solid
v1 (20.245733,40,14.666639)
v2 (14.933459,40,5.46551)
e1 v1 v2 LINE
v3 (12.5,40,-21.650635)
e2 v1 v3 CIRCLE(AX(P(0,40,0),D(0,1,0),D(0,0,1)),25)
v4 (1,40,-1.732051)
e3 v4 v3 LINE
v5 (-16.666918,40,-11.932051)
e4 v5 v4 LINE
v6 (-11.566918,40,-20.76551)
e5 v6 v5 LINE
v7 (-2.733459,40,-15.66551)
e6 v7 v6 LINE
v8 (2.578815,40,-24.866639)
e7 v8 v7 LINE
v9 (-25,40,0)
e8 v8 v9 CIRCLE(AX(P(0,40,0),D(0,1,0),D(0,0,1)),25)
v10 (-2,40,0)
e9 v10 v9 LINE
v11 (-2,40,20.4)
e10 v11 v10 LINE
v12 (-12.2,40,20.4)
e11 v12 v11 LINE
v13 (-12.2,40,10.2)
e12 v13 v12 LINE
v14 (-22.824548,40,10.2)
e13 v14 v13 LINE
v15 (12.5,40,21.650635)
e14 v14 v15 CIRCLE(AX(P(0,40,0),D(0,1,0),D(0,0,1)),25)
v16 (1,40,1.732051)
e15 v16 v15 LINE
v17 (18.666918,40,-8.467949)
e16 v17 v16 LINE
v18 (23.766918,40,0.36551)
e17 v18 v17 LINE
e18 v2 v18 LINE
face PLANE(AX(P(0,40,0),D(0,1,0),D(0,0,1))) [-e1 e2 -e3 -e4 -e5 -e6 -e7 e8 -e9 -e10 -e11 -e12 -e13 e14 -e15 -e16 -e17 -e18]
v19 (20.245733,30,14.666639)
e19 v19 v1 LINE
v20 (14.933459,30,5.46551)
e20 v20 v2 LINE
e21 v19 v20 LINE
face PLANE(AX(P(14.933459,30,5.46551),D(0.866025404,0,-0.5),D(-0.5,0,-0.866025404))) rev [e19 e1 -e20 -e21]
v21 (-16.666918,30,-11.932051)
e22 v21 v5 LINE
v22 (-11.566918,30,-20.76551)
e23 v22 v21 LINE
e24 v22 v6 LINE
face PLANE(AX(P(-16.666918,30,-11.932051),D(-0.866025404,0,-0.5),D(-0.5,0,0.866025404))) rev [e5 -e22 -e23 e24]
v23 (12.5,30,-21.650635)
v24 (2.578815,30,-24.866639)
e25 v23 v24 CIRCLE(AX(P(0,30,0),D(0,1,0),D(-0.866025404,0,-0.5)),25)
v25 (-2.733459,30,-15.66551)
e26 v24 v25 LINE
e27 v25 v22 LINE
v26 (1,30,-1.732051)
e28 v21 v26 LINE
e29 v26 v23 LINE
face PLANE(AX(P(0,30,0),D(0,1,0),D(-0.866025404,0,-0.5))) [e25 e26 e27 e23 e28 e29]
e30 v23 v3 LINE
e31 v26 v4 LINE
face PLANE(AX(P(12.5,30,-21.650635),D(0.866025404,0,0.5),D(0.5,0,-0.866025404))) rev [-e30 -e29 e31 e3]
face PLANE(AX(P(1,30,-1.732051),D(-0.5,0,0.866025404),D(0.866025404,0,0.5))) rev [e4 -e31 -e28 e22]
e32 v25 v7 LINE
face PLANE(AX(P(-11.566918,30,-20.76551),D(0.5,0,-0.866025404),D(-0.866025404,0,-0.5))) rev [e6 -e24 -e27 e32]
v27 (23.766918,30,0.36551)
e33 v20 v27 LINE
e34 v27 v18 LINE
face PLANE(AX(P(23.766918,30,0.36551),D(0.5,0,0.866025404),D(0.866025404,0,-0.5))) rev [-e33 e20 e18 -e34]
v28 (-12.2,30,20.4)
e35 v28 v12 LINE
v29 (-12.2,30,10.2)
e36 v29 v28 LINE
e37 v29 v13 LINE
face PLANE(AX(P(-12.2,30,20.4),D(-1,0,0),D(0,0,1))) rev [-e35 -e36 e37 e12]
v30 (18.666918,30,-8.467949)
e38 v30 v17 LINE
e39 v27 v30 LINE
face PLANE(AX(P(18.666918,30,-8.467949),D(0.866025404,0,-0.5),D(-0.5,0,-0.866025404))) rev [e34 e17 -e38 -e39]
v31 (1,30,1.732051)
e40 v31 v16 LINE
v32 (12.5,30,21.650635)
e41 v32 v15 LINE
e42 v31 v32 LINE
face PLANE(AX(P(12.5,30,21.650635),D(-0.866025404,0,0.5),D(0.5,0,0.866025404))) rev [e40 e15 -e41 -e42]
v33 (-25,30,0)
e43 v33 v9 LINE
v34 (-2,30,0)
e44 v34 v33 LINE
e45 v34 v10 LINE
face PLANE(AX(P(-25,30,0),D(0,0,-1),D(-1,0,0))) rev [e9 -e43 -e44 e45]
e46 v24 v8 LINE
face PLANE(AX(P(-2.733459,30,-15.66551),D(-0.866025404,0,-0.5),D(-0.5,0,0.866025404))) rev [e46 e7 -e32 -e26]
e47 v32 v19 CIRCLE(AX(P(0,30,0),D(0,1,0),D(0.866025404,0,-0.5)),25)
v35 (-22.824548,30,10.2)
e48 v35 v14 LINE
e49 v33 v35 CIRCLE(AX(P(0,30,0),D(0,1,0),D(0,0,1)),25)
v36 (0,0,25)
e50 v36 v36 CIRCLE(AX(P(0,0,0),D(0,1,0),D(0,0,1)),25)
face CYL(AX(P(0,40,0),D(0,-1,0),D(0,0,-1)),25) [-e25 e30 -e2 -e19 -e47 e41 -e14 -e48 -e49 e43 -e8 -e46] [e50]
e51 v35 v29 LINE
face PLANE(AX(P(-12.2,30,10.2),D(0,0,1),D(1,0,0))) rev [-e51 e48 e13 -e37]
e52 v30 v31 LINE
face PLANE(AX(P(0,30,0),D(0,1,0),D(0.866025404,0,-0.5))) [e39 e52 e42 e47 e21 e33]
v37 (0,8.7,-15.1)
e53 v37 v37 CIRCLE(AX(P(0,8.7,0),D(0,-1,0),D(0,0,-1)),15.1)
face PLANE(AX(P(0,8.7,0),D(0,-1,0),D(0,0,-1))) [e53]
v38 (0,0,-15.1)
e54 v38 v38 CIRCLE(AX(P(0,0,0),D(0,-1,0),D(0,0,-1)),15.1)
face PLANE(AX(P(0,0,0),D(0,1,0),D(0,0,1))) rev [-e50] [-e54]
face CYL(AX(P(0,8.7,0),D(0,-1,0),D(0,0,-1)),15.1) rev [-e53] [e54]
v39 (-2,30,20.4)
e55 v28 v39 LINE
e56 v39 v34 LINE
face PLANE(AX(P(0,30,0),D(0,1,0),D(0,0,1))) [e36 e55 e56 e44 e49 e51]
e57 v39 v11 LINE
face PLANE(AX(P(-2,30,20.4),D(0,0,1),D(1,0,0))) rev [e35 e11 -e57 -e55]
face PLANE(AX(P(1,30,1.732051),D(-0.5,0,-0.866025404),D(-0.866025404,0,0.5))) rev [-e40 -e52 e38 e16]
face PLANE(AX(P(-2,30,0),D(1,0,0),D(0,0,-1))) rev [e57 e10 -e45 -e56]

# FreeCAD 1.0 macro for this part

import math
import FreeCAD as App
import Part
import Sketcher

V = App.Vector
Q = App.Units.Quantity

doc = App.newDocument("Part")
params = doc.addObject("Spreadsheet::Sheet", "Params")
for row, (alias, value) in enumerate([
    ("sketch1_diameter", "50 mm"),
    ("pad1_length", "40 mm"),
    ("sketch2_radius", "25 mm"),
    ("sketch2_width", "23 mm"),
    ("sketch2_width2", "10.2 mm"),
    ("sketch2_height", "20.4 mm"),
    ("pocket1_length", "10 mm"),
    ("sketch3_diameter", "30.2 mm"),
    ("pocket2_length", "8.7 mm"),
], start=1):
    params.set(f"A{row}", alias)
    params.set(f"B{row}", "=" + value)
    params.setAlias(f"B{row}", alias)

body = doc.addObject("PartDesign::Body", "Body")

sketch1 = body.newObject("Sketcher::SketchObject", "Sketch")
sketch1.AttachmentSupport = (doc.getObject("XZ_Plane"), [""])
sketch1.MapMode = "FlatFace"
sketch1.addGeometry(Part.Circle(V(0, 0, 0), V(0, 0, 1), 25), False)
sketch1.addConstraint([
    Sketcher.Constraint("Coincident", 0, 3, -1, 1),
    Sketcher.Constraint("Diameter", 0, Q("50 mm")),
])
sketch1.setExpression("Constraints[1]", "Params.sketch1_diameter")
pad1 = body.newObject("PartDesign::Pad", "Pad")
pad1.Profile = sketch1
pad1.setExpression("Length", "Params.pad1_length")
pad1.Reversed = True

sketch2 = body.newObject("Sketcher::SketchObject", "Sketch001")
sketch2.AttachmentSupport = (doc.getObject("XZ_Plane"), [""])
sketch2.MapMode = "FlatFace"
sketch2.AttachmentOffset = App.Placement(V(0, 0, -30), App.Rotation())
sketch2.addGeometry([
    Part.LineSegment(V(-2, 0, 0), V(-25, 0, 0)),
    Part.ArcOfCircle(Part.Circle(V(0, 0, 0), V(0, 0, 1), 25), math.radians(156), math.radians(180)),
    Part.LineSegment(V(-23, 10, 0), V(-12, 10, 0)),
    Part.LineSegment(V(-12, 10, 0), V(-12, 20, 0)),
    Part.LineSegment(V(-12, 20, 0), V(-2, 20, 0)),
    Part.LineSegment(V(-2, 20, 0), V(-2, 0, 0)),
], False)
sketch2.addConstraint([
    Sketcher.Constraint("Coincident", 0, 2, 1, 2),
    Sketcher.Constraint("Coincident", 1, 1, 2, 1),
    Sketcher.Constraint("Coincident", 2, 2, 3, 1),
    Sketcher.Constraint("Coincident", 3, 2, 4, 1),
    Sketcher.Constraint("Coincident", 4, 2, 5, 1),
    Sketcher.Constraint("Coincident", 5, 2, 0, 1),
    Sketcher.Constraint("Horizontal", 0),
    Sketcher.Constraint("Horizontal", 2),
    Sketcher.Constraint("Vertical", 3),
    Sketcher.Constraint("Horizontal", 4),
    Sketcher.Constraint("Vertical", 5),
    Sketcher.Constraint("Coincident", 1, 3, -1, 1),
    Sketcher.Constraint("PointOnObject", 0, 2, -1),
    Sketcher.Constraint("Equal", 4, 3),
    Sketcher.Constraint("Radius", 1, Q("25 mm")),
    Sketcher.Constraint("DistanceX", 0, 2, 0, 1, Q("23 mm")),
    Sketcher.Constraint("DistanceX", 4, 1, 4, 2, Q("10.2 mm")),
    Sketcher.Constraint("DistanceY", 5, 2, 5, 1, Q("20.4 mm")),
])
sketch2.setExpression("Constraints[14]", "Params.sketch2_radius")
sketch2.setExpression("Constraints[15]", "Params.sketch2_width")
sketch2.setExpression("Constraints[16]", "Params.sketch2_width2")
sketch2.setExpression("Constraints[17]", "Params.sketch2_height")
pocket1 = body.newObject("PartDesign::Pocket", "Pocket")
pocket1.Profile = sketch2
pocket1.setExpression("Length", "Params.pocket1_length")
doc.recompute()

polarpattern = body.newObject("PartDesign::PolarPattern", "PolarPattern")
polarpattern.Originals = [pocket1]
polarpattern.Axis = (doc.getObject("Y_Axis"), [""])
polarpattern.Angle = 360
polarpattern.Occurrences = 3
body.Tip = polarpattern

sketch3 = body.newObject("Sketcher::SketchObject", "Sketch002")
sketch3.AttachmentSupport = (doc.getObject("XZ_Plane"), [""])
sketch3.MapMode = "FlatFace"
sketch3.addGeometry(Part.Circle(V(0, 0, 0), V(0, 0, 1), 15), False)
sketch3.addConstraint([
    Sketcher.Constraint("Coincident", 0, 3, -1, 1),
    Sketcher.Constraint("Diameter", 0, Q("30.2 mm")),
])
sketch3.setExpression("Constraints[1]", "Params.sketch3_diameter")
pocket2 = body.newObject("PartDesign::Pocket", "Pocket001")
pocket2.Profile = sketch3
pocket2.setExpression("Length", "Params.pocket2_length")

doc.recompute()
